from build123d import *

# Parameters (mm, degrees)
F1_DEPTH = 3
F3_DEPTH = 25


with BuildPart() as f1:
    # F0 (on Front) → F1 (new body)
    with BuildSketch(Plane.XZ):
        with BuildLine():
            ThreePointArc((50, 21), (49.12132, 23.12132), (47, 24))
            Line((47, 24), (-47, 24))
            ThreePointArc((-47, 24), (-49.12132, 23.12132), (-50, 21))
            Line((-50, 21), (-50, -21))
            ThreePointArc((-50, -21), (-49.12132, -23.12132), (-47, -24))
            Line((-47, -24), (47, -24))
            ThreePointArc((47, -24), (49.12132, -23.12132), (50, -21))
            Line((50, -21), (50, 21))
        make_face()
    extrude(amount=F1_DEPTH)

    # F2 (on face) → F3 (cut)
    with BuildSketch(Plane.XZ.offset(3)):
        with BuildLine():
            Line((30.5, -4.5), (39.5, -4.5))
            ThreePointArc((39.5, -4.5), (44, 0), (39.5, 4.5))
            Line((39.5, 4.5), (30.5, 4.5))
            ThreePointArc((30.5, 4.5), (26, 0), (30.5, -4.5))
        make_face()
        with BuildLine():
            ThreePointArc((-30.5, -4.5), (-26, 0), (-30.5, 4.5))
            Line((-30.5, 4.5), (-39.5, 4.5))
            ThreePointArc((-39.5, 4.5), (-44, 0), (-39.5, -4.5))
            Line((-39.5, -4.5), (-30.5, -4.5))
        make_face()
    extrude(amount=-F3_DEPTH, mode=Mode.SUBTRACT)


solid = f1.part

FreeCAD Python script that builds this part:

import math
import FreeCAD as App
import Part
import Sketcher
from FreeCAD import Vector

doc = App.newDocument("Part")
body = doc.addObject("PartDesign::Body", "Body")

sketch1 = doc.addObject("Sketcher::SketchObject", "Sketch")
body.addObject(sketch1)
sketch1.AttachmentSupport = (doc.XZ_Plane, [""])
sketch1.MapMode = "FlatFace"
sketch1.addGeometry(Part.ArcOfCircle(Part.Circle(Vector(47, 21, 0), Vector(0, 0, 1), 3), math.radians(0), math.radians(90)), False)
sketch1.addGeometry(Part.LineSegment(Vector(47, 24, 0), Vector(-47, 24, 0)), False)
sketch1.addGeometry(Part.ArcOfCircle(Part.Circle(Vector(-47, 21, 0), Vector(0, 0, 1), 3), math.radians(90), math.radians(180)), False)
sketch1.addGeometry(Part.LineSegment(Vector(-50, 21, 0), Vector(-50, -21, 0)), False)
sketch1.addGeometry(Part.ArcOfCircle(Part.Circle(Vector(-47, -21, 0), Vector(0, 0, 1), 3), math.radians(-180), math.radians(-90)), False)
sketch1.addGeometry(Part.LineSegment(Vector(-47, -24, 0), Vector(47, -24, 0)), False)
sketch1.addGeometry(Part.ArcOfCircle(Part.Circle(Vector(47, -21, 0), Vector(0, 0, 1), 3), math.radians(-90), math.radians(0)), False)
sketch1.addGeometry(Part.LineSegment(Vector(50, -21, 0), Vector(50, 21, 0)), False)
sketch1.addConstraint(Sketcher.Constraint("Tangent", 0, 2, 1, 1))
sketch1.addConstraint(Sketcher.Constraint("Tangent", 1, 2, 2, 1))
sketch1.addConstraint(Sketcher.Constraint("Tangent", 2, 2, 3, 1))
sketch1.addConstraint(Sketcher.Constraint("Tangent", 3, 2, 4, 1))
sketch1.addConstraint(Sketcher.Constraint("Tangent", 4, 2, 5, 1))
sketch1.addConstraint(Sketcher.Constraint("Tangent", 5, 2, 6, 1))
sketch1.addConstraint(Sketcher.Constraint("Tangent", 6, 2, 7, 1))
sketch1.addConstraint(Sketcher.Constraint("Tangent", 7, 2, 0, 1))
sketch1.addConstraint(Sketcher.Constraint("Horizontal", 1))
sketch1.addConstraint(Sketcher.Constraint("Vertical", 3))
sketch1.addConstraint(Sketcher.Constraint("Horizontal", 5))
sketch1.addConstraint(Sketcher.Constraint("Vertical", 7))
sketch1.addConstraint(Sketcher.Constraint("Equal", 0, 2))
sketch1.addConstraint(Sketcher.Constraint("Equal", 2, 4))
sketch1.addConstraint(Sketcher.Constraint("Equal", 4, 6))
sketch1.addConstraint(Sketcher.Constraint("Symmetric", 0, 3, 4, 3, -1, 1))
sketch1.addConstraint(Sketcher.Constraint("Radius", 0, 3.000001))
sketch1.addConstraint(Sketcher.Constraint("DistanceX", 1, 2, 1, 1, 94.0))
sketch1.addConstraint(Sketcher.Constraint("DistanceY", 3, 2, 3, 1, 42.0))
pad1 = doc.addObject("PartDesign::Pad", "Pad")
body.addObject(pad1)
pad1.Profile = sketch1
pad1.Length = 3

sketch2 = doc.addObject("Sketcher::SketchObject", "Sketch001")
body.addObject(sketch2)
sketch2.AttachmentSupport = (doc.XZ_Plane, [""])
sketch2.MapMode = "FlatFace"
sketch2.AttachmentOffset = App.Placement(Vector(0, 0, 3), App.Rotation())
sketch2.addGeometry(Part.LineSegment(Vector(30.5, -4.5, 0), Vector(39.5, -4.5, 0)), False)
sketch2.addGeometry(Part.ArcOfCircle(Part.Circle(Vector(39.5, 0, 0), Vector(0, 0, 1), 4.5), math.radians(-90), math.radians(90)), False)
sketch2.addGeometry(Part.LineSegment(Vector(39.5, 4.5, 0), Vector(30.5, 4.5, 0)), False)
sketch2.addGeometry(Part.ArcOfCircle(Part.Circle(Vector(30.5, 0, 0), Vector(0, 0, 1), 4.5), math.radians(90), math.radians(270)), False)
sketch2.addGeometry(Part.ArcOfCircle(Part.Circle(Vector(-30.5, 0, 0), Vector(0, 0, 1), 4.5), math.radians(-90), math.radians(90)), False)
sketch2.addGeometry(Part.LineSegment(Vector(-30.5, 4.5, 0), Vector(-39.5, 4.5, 0)), False)
sketch2.addGeometry(Part.ArcOfCircle(Part.Circle(Vector(-39.5, 0, 0), Vector(0, 0, 1), 4.5), math.radians(90), math.radians(270)), False)
sketch2.addGeometry(Part.LineSegment(Vector(-39.5, -4.5, 0), Vector(-30.5, -4.5, 0)), False)
sketch2.addConstraint(Sketcher.Constraint("Tangent", 0, 2, 1, 1))
sketch2.addConstraint(Sketcher.Constraint("Tangent", 1, 2, 2, 1))
sketch2.addConstraint(Sketcher.Constraint("Tangent", 2, 2, 3, 1))
sketch2.addConstraint(Sketcher.Constraint("Tangent", 3, 2, 0, 1))
sketch2.addConstraint(Sketcher.Constraint("Tangent", 4, 2, 5, 1))
sketch2.addConstraint(Sketcher.Constraint("Tangent", 5, 2, 6, 1))
sketch2.addConstraint(Sketcher.Constraint("Tangent", 6, 2, 7, 1))
sketch2.addConstraint(Sketcher.Constraint("Tangent", 7, 2, 4, 1))
sketch2.addConstraint(Sketcher.Constraint("Horizontal", 0))
sketch2.addConstraint(Sketcher.Constraint("Horizontal", 2))
sketch2.addConstraint(Sketcher.Constraint("Horizontal", 5))
sketch2.addConstraint(Sketcher.Constraint("Horizontal", 7))
sketch2.addConstraint(Sketcher.Constraint("Equal", 3, 4))
sketch2.addConstraint(Sketcher.Constraint("Symmetric", 3, 3, 4, 3, -1, 1))
sketch2.addConstraint(Sketcher.Constraint("Symmetric", 1, 3, 6, 3, -2))
sketch2.addConstraint(Sketcher.Constraint("Radius", 1, 4.5))
sketch2.addConstraint(Sketcher.Constraint("DistanceX", 0, 1, 0, 2, 9.0))
sketch2.addConstraint(Sketcher.Constraint("DistanceX", 4, 3, 3, 3, 61.0))
pocket1 = doc.addObject("PartDesign::Pocket", "Pocket")
body.addObject(pocket1)
pocket1.Profile = sketch2
pocket1.Length = 25

doc.recompute()
